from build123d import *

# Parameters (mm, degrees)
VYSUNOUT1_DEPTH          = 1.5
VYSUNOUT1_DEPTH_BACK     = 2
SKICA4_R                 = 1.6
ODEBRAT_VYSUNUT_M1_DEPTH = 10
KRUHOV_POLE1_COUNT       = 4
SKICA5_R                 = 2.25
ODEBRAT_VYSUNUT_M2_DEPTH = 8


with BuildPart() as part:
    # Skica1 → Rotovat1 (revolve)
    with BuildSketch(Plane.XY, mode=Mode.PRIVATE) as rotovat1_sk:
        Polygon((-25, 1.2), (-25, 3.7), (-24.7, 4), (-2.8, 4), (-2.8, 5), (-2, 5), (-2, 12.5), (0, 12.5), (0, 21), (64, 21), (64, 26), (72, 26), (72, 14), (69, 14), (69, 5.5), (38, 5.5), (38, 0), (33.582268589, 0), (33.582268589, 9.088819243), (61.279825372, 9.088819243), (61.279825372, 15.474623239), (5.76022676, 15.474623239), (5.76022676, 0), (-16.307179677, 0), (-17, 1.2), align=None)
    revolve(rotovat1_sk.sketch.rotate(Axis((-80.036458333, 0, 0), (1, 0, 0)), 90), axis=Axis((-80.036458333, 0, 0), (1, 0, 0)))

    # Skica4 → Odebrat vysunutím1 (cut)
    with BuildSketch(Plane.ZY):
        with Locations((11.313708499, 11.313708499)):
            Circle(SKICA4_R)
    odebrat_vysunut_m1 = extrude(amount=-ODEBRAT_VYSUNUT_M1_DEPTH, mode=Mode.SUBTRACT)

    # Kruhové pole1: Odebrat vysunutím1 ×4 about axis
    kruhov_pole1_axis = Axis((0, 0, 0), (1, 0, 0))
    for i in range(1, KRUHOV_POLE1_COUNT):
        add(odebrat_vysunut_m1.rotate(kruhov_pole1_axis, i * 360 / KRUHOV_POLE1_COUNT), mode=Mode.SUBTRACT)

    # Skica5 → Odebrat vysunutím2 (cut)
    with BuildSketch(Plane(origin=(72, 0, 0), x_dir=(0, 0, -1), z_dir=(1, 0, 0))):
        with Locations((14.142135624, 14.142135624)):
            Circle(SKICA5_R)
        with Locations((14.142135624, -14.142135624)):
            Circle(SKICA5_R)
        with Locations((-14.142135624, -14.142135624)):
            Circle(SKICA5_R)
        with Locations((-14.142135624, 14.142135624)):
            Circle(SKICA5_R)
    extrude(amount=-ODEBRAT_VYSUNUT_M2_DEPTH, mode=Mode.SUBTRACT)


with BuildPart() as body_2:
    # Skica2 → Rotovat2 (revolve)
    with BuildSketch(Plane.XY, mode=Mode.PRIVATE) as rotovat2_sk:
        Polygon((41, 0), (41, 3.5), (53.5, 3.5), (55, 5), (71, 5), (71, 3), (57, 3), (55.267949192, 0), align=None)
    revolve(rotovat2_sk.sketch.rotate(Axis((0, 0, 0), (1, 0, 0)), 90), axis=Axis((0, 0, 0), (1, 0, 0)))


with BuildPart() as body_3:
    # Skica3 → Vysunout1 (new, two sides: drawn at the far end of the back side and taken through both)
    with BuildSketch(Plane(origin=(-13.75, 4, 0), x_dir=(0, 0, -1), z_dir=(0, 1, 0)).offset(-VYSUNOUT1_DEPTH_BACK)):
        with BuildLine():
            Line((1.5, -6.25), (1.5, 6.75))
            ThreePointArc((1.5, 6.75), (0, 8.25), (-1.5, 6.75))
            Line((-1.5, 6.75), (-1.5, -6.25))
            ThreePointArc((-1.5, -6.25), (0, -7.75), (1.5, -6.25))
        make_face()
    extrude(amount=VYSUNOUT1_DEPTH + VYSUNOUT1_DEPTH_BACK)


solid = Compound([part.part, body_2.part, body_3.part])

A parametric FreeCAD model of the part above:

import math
import FreeCAD as App
import Part
import Sketcher
from FreeCAD import Vector
Q = App.Units.Quantity

doc = App.newDocument("Part")
params = doc.addObject("Spreadsheet::Sheet", "Params")
for row, (alias, value) in enumerate([
    ("sketch1_width", "8 mm"),
    ("sketch1_width2", "31 mm"),
    ("sketch1_width3", "3 mm"),
    ("sketch1_width4", "64 mm"),
    ("sketch1_width5", "2 mm"),
    ("revolution_angle", "360 deg"),
    ("sketch2_diameter", "3.2 mm"),
    ("pocket1_length", "10 mm"),
    ("sketch3_diameter", "4.5 mm"),
    ("pocket2_length", "8 mm"),
    ("sketch4_width", "14 mm"),
    ("sketch4_width2", "16 mm"),
    ("sketch4_height", "2 mm"),
    ("sketch4_width3", "12.5 mm"),
    ("sketch4_height2", "3.5 mm"),
    ("revolution2_angle", "360 deg"),
    ("sketch5_radius", "1.5 mm"),
    ("sketch5_width", "13 mm"),
    ("pad1_length", "1.5 mm"),
    ("pad1_length2", "2 mm"),
], start=1):
    params.set(f"A{row}", alias)
    params.set(f"B{row}", "=" + value)
    params.setAlias(f"B{row}", alias)

body = doc.addObject("PartDesign::Body", "Body")

# Sketch on XY plane
sketch1 = body.newObject("Sketcher::SketchObject", "Sketch")
sketch1.AttachmentSupport = (doc.getObject("XY_Plane"), [""])
sketch1.MapMode = "FlatFace"
sketch1.addGeometry(Part.LineSegment(Vector(-25, 3.7, 0), Vector(-25, 1.2, 0)), False)
sketch1.addGeometry(Part.LineSegment(Vector(-25, 1.2, 0), Vector(-17, 1.2, 0)), False)
sketch1.addGeometry(Part.LineSegment(Vector(-17, 1.2, 0), Vector(-16.31, 0, 0)), False)
sketch1.addGeometry(Part.LineSegment(Vector(-16.31, 0, 0), Vector(5.76, 0, 0)), False)
sketch1.addGeometry(Part.LineSegment(Vector(5.76, 0, 0), Vector(5.76, 15.47, 0)), False)
sketch1.addGeometry(Part.LineSegment(Vector(5.76, 15.47, 0), Vector(61.28, 15.47, 0)), False)
sketch1.addGeometry(Part.LineSegment(Vector(61.28, 15.47, 0), Vector(61.28, 9.09, 0)), False)
sketch1.addGeometry(Part.LineSegment(Vector(61.28, 9.09, 0), Vector(33.58, 9.09, 0)), False)
sketch1.addGeometry(Part.LineSegment(Vector(33.58, 9.09, 0), Vector(33.58, 0, 0)), False)
sketch1.addGeometry(Part.LineSegment(Vector(33.58, 0, 0), Vector(38, 0, 0)), False)
sketch1.addGeometry(Part.LineSegment(Vector(38, 0, 0), Vector(38, 5.5, 0)), False)
sketch1.addGeometry(Part.LineSegment(Vector(38, 5.5, 0), Vector(69, 5.5, 0)), False)
sketch1.addGeometry(Part.LineSegment(Vector(69, 5.5, 0), Vector(69, 14, 0)), False)
sketch1.addGeometry(Part.LineSegment(Vector(69, 14, 0), Vector(72, 14, 0)), False)
sketch1.addGeometry(Part.LineSegment(Vector(72, 14, 0), Vector(72, 26, 0)), False)
sketch1.addGeometry(Part.LineSegment(Vector(72, 26, 0), Vector(64, 26, 0)), False)
sketch1.addGeometry(Part.LineSegment(Vector(64, 26, 0), Vector(64, 21, 0)), False)
sketch1.addGeometry(Part.LineSegment(Vector(64, 21, 0), Vector(0, 21, 0)), False)
sketch1.addGeometry(Part.LineSegment(Vector(0, 21, 0), Vector(0, 12.5, 0)), False)
sketch1.addGeometry(Part.LineSegment(Vector(0, 12.5, 0), Vector(-2, 12.5, 0)), False)
sketch1.addGeometry(Part.LineSegment(Vector(-2, 12.5, 0), Vector(-2, 5, 0)), False)
sketch1.addGeometry(Part.LineSegment(Vector(-2, 5, 0), Vector(-2.8, 5, 0)), False)
sketch1.addGeometry(Part.LineSegment(Vector(-2.8, 5, 0), Vector(-2.8, 4, 0)), False)
sketch1.addGeometry(Part.LineSegment(Vector(-2.8, 4, 0), Vector(-24.7, 4, 0)), False)
sketch1.addGeometry(Part.LineSegment(Vector(-24.7, 4, 0), Vector(-25, 3.7, 0)), False)
sketch1.addConstraint(Sketcher.Constraint("Coincident", 0, 2, 1, 1))
sketch1.addConstraint(Sketcher.Constraint("Coincident", 1, 2, 2, 1))
sketch1.addConstraint(Sketcher.Constraint("Coincident", 2, 2, 3, 1))
sketch1.addConstraint(Sketcher.Constraint("Coincident", 3, 2, 4, 1))
sketch1.addConstraint(Sketcher.Constraint("Coincident", 4, 2, 5, 1))
sketch1.addConstraint(Sketcher.Constraint("Coincident", 5, 2, 6, 1))
sketch1.addConstraint(Sketcher.Constraint("Coincident", 6, 2, 7, 1))
sketch1.addConstraint(Sketcher.Constraint("Coincident", 7, 2, 8, 1))
sketch1.addConstraint(Sketcher.Constraint("Coincident", 8, 2, 9, 1))
sketch1.addConstraint(Sketcher.Constraint("Coincident", 9, 2, 10, 1))
sketch1.addConstraint(Sketcher.Constraint("Coincident", 10, 2, 11, 1))
sketch1.addConstraint(Sketcher.Constraint("Coincident", 11, 2, 12, 1))
sketch1.addConstraint(Sketcher.Constraint("Coincident", 12, 2, 13, 1))
sketch1.addConstraint(Sketcher.Constraint("Coincident", 13, 2, 14, 1))
sketch1.addConstraint(Sketcher.Constraint("Coincident", 14, 2, 15, 1))
sketch1.addConstraint(Sketcher.Constraint("Coincident", 15, 2, 16, 1))
sketch1.addConstraint(Sketcher.Constraint("Coincident", 16, 2, 17, 1))
sketch1.addConstraint(Sketcher.Constraint("Coincident", 17, 2, 18, 1))
sketch1.addConstraint(Sketcher.Constraint("Coincident", 18, 2, 19, 1))
sketch1.addConstraint(Sketcher.Constraint("Coincident", 19, 2, 20, 1))
sketch1.addConstraint(Sketcher.Constraint("Coincident", 20, 2, 21, 1))
sketch1.addConstraint(Sketcher.Constraint("Coincident", 21, 2, 22, 1))
sketch1.addConstraint(Sketcher.Constraint("Coincident", 22, 2, 23, 1))
sketch1.addConstraint(Sketcher.Constraint("Coincident", 23, 2, 24, 1))
sketch1.addConstraint(Sketcher.Constraint("Coincident", 24, 2, 0, 1))
sketch1.addConstraint(Sketcher.Constraint("Vertical", 0))
sketch1.addConstraint(Sketcher.Constraint("Horizontal", 1))
sketch1.addConstraint(Sketcher.Constraint("Horizontal", 3))
sketch1.addConstraint(Sketcher.Constraint("Vertical", 4))
sketch1.addConstraint(Sketcher.Constraint("Horizontal", 5))
sketch1.addConstraint(Sketcher.Constraint("Vertical", 6))
sketch1.addConstraint(Sketcher.Constraint("Horizontal", 7))
sketch1.addConstraint(Sketcher.Constraint("Vertical", 8))
sketch1.addConstraint(Sketcher.Constraint("Horizontal", 9))
sketch1.addConstraint(Sketcher.Constraint("Vertical", 10))
sketch1.addConstraint(Sketcher.Constraint("Horizontal", 11))
sketch1.addConstraint(Sketcher.Constraint("Vertical", 12))
sketch1.addConstraint(Sketcher.Constraint("Horizontal", 13))
sketch1.addConstraint(Sketcher.Constraint("Vertical", 14))
sketch1.addConstraint(Sketcher.Constraint("Horizontal", 15))
sketch1.addConstraint(Sketcher.Constraint("Vertical", 16))
sketch1.addConstraint(Sketcher.Constraint("Horizontal", 17))
sketch1.addConstraint(Sketcher.Constraint("Vertical", 18))
sketch1.addConstraint(Sketcher.Constraint("Horizontal", 19))
sketch1.addConstraint(Sketcher.Constraint("Vertical", 20))
sketch1.addConstraint(Sketcher.Constraint("Horizontal", 21))
sketch1.addConstraint(Sketcher.Constraint("Vertical", 22))
sketch1.addConstraint(Sketcher.Constraint("Horizontal", 23))
sketch1.addConstraint(Sketcher.Constraint("PointOnObject", 2, 2, -1))
sketch1.addConstraint(Sketcher.Constraint("PointOnObject", 8, 2, -1))
sketch1.addConstraint(Sketcher.Constraint("PointOnObject", 17, 2, -2))
sketch1.addConstraint(Sketcher.Constraint("Equal", 1, 15))
sketch1.addConstraint(Sketcher.Constraint("Equal", 12, 18))
sketch1.addConstraint(Sketcher.Constraint("DistanceX", 1, 1, 1, 2, Q("8 mm")))
sketch1.addConstraint(Sketcher.Constraint("DistanceX", 11, 1, 11, 2, Q("31 mm")))
sketch1.addConstraint(Sketcher.Constraint("DistanceX", 13, 1, 13, 2, Q("3 mm")))
sketch1.addConstraint(Sketcher.Constraint("DistanceX", 17, 2, 17, 1, Q("64 mm")))
sketch1.addConstraint(Sketcher.Constraint("DistanceX", 19, 2, 19, 1, Q("2 mm")))
sketch1.addConstraint(Sketcher.Constraint("DistanceY", 14, 1, 14, 2, Q("12 mm")))
sketch1.addConstraint(Sketcher.Constraint("DistanceY", 16, 2, 16, 1, Q("5 mm")))
sketch1.addConstraint(Sketcher.Constraint("DistanceY", 22, 2, 22, 1, Q("1 mm")))
sketch1.addConstraint(Sketcher.Constraint("Angle", 2, Q("-60 deg")))
sketch1.addConstraint(Sketcher.Constraint("Angle", 24, Q("-135 deg")))
sketch1.addConstraint(Sketcher.Constraint("DistanceX", 21, 2, 21, 1, Q("0.8 mm")))
sketch1.addConstraint(Sketcher.Constraint("DistanceX", 23, 2, 23, 1, Q("21.9 mm")))
sketch1.addConstraint(Sketcher.Constraint("DistanceY", 0, 2, 0, 1, Q("2.5 mm")))
sketch1.addConstraint(Sketcher.Constraint("DistanceY", 10, 1, 10, 2, Q("5.5 mm")))
sketch1.addConstraint(Sketcher.Constraint("DistanceY", 12, 1, 12, 2, Q("8.5 mm")))
sketch1.addConstraint(Sketcher.Constraint("DistanceY", 20, 2, 20, 1, Q("7.5 mm")))
sketch1.addConstraint(Sketcher.Constraint("DistanceX", 0, 2, -1, 1, Q("25 mm")))
sketch1.addConstraint(Sketcher.Constraint("DistanceX", 5, 1, 5, 2, Q("55.519599 mm")))
sketch1.addConstraint(Sketcher.Constraint("DistanceX", 9, 1, 9, 2, Q("4.417731 mm")))
sketch1.addConstraint(Sketcher.Constraint("DistanceY", 8, 2, 8, 1, Q("9.088819 mm")))
sketch1.addConstraint(Sketcher.Constraint("DistanceX", 3, 1, 3, 2, Q("22.067406 mm")))
sketch1.addConstraint(Sketcher.Constraint("DistanceY", 4, 1, 4, 2, Q("15.474623 mm")))
sketch1.setExpression("Constraints[53]", "Params.sketch1_width")
sketch1.setExpression("Constraints[54]", "Params.sketch1_width2")
sketch1.setExpression("Constraints[55]", "Params.sketch1_width3")
sketch1.setExpression("Constraints[56]", "Params.sketch1_width4")
sketch1.setExpression("Constraints[57]", "Params.sketch1_width5")
revolution = body.newObject("PartDesign::Revolution", "Revolution")
revolution.Profile = sketch1
revolution.ReferenceAxis = (sketch1, ["H_Axis"])
revolution.setExpression("Angle", "Params.revolution_angle")

# Sketch on YZ plane
sketch2 = body.newObject("Sketcher::SketchObject", "Sketch001")
sketch2.AttachmentSupport = (doc.getObject("YZ_Plane"), [""])
sketch2.MapMode = "FlatFace"
sketch2.addGeometry(Part.Circle(Vector(11.3, 11.3, 0), Vector(0, 0, 1), 1.6), False)
sketch2.addConstraint(Sketcher.Constraint("Diameter", 0, Q("3.2 mm")))
sketch2.addConstraint(Sketcher.Constraint("DistanceX", -1, 1, 0, 3, Q("11.313708 mm")))
sketch2.addConstraint(Sketcher.Constraint("DistanceY", -1, 1, 0, 3, Q("11.313708 mm")))
sketch2.setExpression("Constraints[0]", "Params.sketch2_diameter")
pocket1 = body.newObject("PartDesign::Pocket", "Pocket")
pocket1.Profile = sketch2
pocket1.setExpression("Length", "Params.pocket1_length")
pocket1.Reversed = True
doc.recompute()

polarpattern = body.newObject("PartDesign::PolarPattern", "PolarPattern")
polarpattern.Originals = [pocket1]
polarpattern.Axis = (doc.getObject("X_Axis"), [""])
polarpattern.Angle = 360
polarpattern.Occurrences = 4
body.Tip = polarpattern

# Sketch on YZ plane
sketch3 = body.newObject("Sketcher::SketchObject", "Sketch002")
sketch3.AttachmentSupport = (doc.getObject("YZ_Plane"), [""])
sketch3.MapMode = "FlatFace"
sketch3.AttachmentOffset = App.Placement(Vector(0, 0, 72), App.Rotation())
sketch3.addGeometry(Part.Circle(Vector(14.1, -14.1, 0), Vector(0, 0, 1), 2.2), False)
sketch3.addGeometry(Part.Circle(Vector(-14.1, -14.1, 0), Vector(0, 0, 1), 2.2), False)
sketch3.addGeometry(Part.Circle(Vector(-14.1, 14.1, 0), Vector(0, 0, 1), 2.2), False)
sketch3.addGeometry(Part.Circle(Vector(14.1, 14.1, 0), Vector(0, 0, 1), 2.2), False)
sketch3.addConstraint(Sketcher.Constraint("Equal", 0, 1))
sketch3.addConstraint(Sketcher.Constraint("Equal", 1, 2))
sketch3.addConstraint(Sketcher.Constraint("Equal", 2, 3))
sketch3.addConstraint(Sketcher.Constraint("Symmetric", 0, 3, 2, 3, -1, 1))
sketch3.addConstraint(Sketcher.Constraint("Symmetric", 1, 3, 3, 3, -1, 1))
sketch3.addConstraint(Sketcher.Constraint("Symmetric", 0, 3, 1, 3, -2))
sketch3.addConstraint(Sketcher.Constraint("Diameter", 0, Q("4.5 mm")))
sketch3.addConstraint(Sketcher.Constraint("DistanceX", 1, 3, 0, 3, Q("28.284271 mm")))
sketch3.addConstraint(Sketcher.Constraint("DistanceY", 1, 3, 2, 3, Q("28.284271 mm")))
sketch3.setExpression("Constraints[6]", "Params.sketch3_diameter")
pocket2 = body.newObject("PartDesign::Pocket", "Pocket001")
pocket2.Profile = sketch3
pocket2.setExpression("Length", "Params.pocket2_length")
body2 = doc.addObject("PartDesign::Body", "Body001")

# Sketch on XY plane
sketch4 = body2.newObject("Sketcher::SketchObject", "Sketch003")
sketch4.AttachmentSupport = (doc.getObject("XY_Plane001"), [""])
sketch4.MapMode = "FlatFace"
sketch4.addGeometry(Part.LineSegment(Vector(41, 3.5, 0), Vector(41, 0, 0)), False)
sketch4.addGeometry(Part.LineSegment(Vector(41, 0, 0), Vector(55.3, 0, 0)), False)
sketch4.addGeometry(Part.LineSegment(Vector(55.3, 0, 0), Vector(57, 3, 0)), False)
sketch4.addGeometry(Part.LineSegment(Vector(57, 3, 0), Vector(71, 3, 0)), False)
sketch4.addGeometry(Part.LineSegment(Vector(71, 3, 0), Vector(71, 5, 0)), False)
sketch4.addGeometry(Part.LineSegment(Vector(71, 5, 0), Vector(55, 5, 0)), False)
sketch4.addGeometry(Part.LineSegment(Vector(55, 5, 0), Vector(53.5, 3.5, 0)), False)
sketch4.addGeometry(Part.LineSegment(Vector(53.5, 3.5, 0), Vector(41, 3.5, 0)), False)
sketch4.addConstraint(Sketcher.Constraint("Coincident", 0, 2, 1, 1))
sketch4.addConstraint(Sketcher.Constraint("Coincident", 1, 2, 2, 1))
sketch4.addConstraint(Sketcher.Constraint("Coincident", 2, 2, 3, 1))
sketch4.addConstraint(Sketcher.Constraint("Coincident", 3, 2, 4, 1))
sketch4.addConstraint(Sketcher.Constraint("Coincident", 4, 2, 5, 1))
sketch4.addConstraint(Sketcher.Constraint("Coincident", 5, 2, 6, 1))
sketch4.addConstraint(Sketcher.Constraint("Coincident", 6, 2, 7, 1))
sketch4.addConstraint(Sketcher.Constraint("Coincident", 7, 2, 0, 1))
sketch4.addConstraint(Sketcher.Constraint("Vertical", 0))
sketch4.addConstraint(Sketcher.Constraint("Horizontal", 1))
sketch4.addConstraint(Sketcher.Constraint("Horizontal", 3))
sketch4.addConstraint(Sketcher.Constraint("Vertical", 4))
sketch4.addConstraint(Sketcher.Constraint("Horizontal", 5))
sketch4.addConstraint(Sketcher.Constraint("Horizontal", 7))
sketch4.addConstraint(Sketcher.Constraint("PointOnObject", 0, 2, -1))
sketch4.addConstraint(Sketcher.Constraint("DistanceX", 3, 1, 3, 2, Q("14 mm")))
sketch4.addConstraint(Sketcher.Constraint("DistanceX", 5, 2, 5, 1, Q("16 mm")))
sketch4.addConstraint(Sketcher.Constraint("DistanceY", 4, 1, 4, 2, Q("2 mm")))
sketch4.addConstraint(Sketcher.Constraint("Angle", 2, Q("60 deg")))
sketch4.addConstraint(Sketcher.Constraint("Angle", 6, Q("-135 deg")))
sketch4.addConstraint(Sketcher.Constraint("DistanceX", 7, 2, 7, 1, Q("12.5 mm")))
sketch4.addConstraint(Sketcher.Constraint("DistanceY", 0, 2, 0, 1, Q("3.5 mm")))
sketch4.addConstraint(Sketcher.Constraint("DistanceX", -1, 1, 0, 2, Q("41 mm")))
sketch4.addConstraint(Sketcher.Constraint("DistanceX", -1, 1, 2, 2, Q("57 mm")))
sketch4.setExpression("Constraints[15]", "Params.sketch4_width")
sketch4.setExpression("Constraints[16]", "Params.sketch4_width2")
sketch4.setExpression("Constraints[17]", "Params.sketch4_height")
sketch4.setExpression("Constraints[20]", "Params.sketch4_width3")
sketch4.setExpression("Constraints[21]", "Params.sketch4_height2")
revolution2 = body2.newObject("PartDesign::Revolution", "Revolution001")
revolution2.Profile = sketch4
revolution2.ReferenceAxis = (sketch4, ["H_Axis"])
revolution2.setExpression("Angle", "Params.revolution2_angle")
body3 = doc.addObject("PartDesign::Body", "Body002")

# Sketch on XZ plane
sketch5 = body3.newObject("Sketcher::SketchObject", "Sketch004")
sketch5.AttachmentSupport = (doc.getObject("XZ_Plane002"), [""])
sketch5.MapMode = "FlatFace"
sketch5.AttachmentOffset = App.Placement(Vector(0, 0, -4), App.Rotation())
sketch5.addGeometry(Part.LineSegment(Vector(-7.5, -1.5, 0), Vector(-20.5, -1.5, 0)), False)
sketch5.addGeometry(Part.ArcOfCircle(Part.Circle(Vector(-20.5, 0, 0), Vector(0, 0, 1), 1.5), math.radians(90), math.radians(270)), False)
sketch5.addGeometry(Part.LineSegment(Vector(-20.5, 1.5, 0), Vector(-7.5, 1.5, 0)), False)
sketch5.addGeometry(Part.ArcOfCircle(Part.Circle(Vector(-7.5, 0, 0), Vector(0, 0, 1), 1.5), math.radians(-90), math.radians(90)), False)
sketch5.addConstraint(Sketcher.Constraint("Tangent", 0, 2, 1, 2))
sketch5.addConstraint(Sketcher.Constraint("Tangent", 1, 1, 2, 1))
sketch5.addConstraint(Sketcher.Constraint("Tangent", 2, 2, 3, 2))
sketch5.addConstraint(Sketcher.Constraint("Tangent", 3, 1, 0, 1))
sketch5.addConstraint(Sketcher.Constraint("Horizontal", 0))
sketch5.addConstraint(Sketcher.Constraint("Horizontal", 2))
sketch5.addConstraint(Sketcher.Constraint("PointOnObject", 1, 3, -1))
sketch5.addConstraint(Sketcher.Constraint("Radius", 1, Q("1.5 mm")))
sketch5.addConstraint(Sketcher.Constraint("DistanceX", 0, 2, 0, 1, Q("13 mm")))
sketch5.addConstraint(Sketcher.Constraint("DistanceX", 1, 3, -1, 1, Q("20.5 mm")))
sketch5.setExpression("Constraints[7]", "Params.sketch5_radius")
sketch5.setExpression("Constraints[8]", "Params.sketch5_width")
pad1 = body3.newObject("PartDesign::Pad", "Pad")
pad1.Profile = sketch5
pad1.Type = "TwoLengths"
pad1.setExpression("Length", "Params.pad1_length")
pad1.setExpression("Length2", "Params.pad1_length2")
pad1.Reversed = True

doc.recompute()
